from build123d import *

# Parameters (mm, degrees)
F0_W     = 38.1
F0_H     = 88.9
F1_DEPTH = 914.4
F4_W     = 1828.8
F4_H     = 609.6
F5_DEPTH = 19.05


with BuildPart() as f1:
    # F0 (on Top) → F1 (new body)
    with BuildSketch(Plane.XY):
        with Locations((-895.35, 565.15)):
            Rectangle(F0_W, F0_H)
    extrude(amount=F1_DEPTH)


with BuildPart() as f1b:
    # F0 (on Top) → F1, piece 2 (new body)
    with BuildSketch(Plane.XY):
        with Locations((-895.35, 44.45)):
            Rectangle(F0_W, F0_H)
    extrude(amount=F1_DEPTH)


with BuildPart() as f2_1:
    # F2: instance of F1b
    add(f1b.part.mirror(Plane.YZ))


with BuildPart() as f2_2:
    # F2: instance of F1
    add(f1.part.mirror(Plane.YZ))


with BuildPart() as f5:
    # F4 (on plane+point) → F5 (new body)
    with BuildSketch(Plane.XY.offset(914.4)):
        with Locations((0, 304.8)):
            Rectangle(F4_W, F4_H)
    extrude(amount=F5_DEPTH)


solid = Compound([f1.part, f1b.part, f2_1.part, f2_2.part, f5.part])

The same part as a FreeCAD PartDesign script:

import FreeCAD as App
import Part
import Sketcher
Q = App.Units.Quantity

doc = App.newDocument("Part")
params = doc.addObject("Spreadsheet::Sheet", "Params")
for row, (alias, value) in enumerate([
    ("sketch1_width", "1.5 in"),
    ("sketch1_height", "3.5 in"),
    ("pad1_length", "36 in"),
    ("sketch2_width", "1.5 in"),
    ("sketch2_height", "3.5 in"),
    ("pad2_length", "36 in"),
    ("sketch3_width", "72 in"),
    ("sketch3_height", "24 in"),
    ("pad3_length", "0.75 in"),
], start=1):
    params.set(f"A{row}", alias)
    params.set(f"B{row}", "=" + value)
    params.setAlias(f"B{row}", alias)

body = doc.addObject("PartDesign::Body", "Body")

# Sketch on XY plane
sketch1 = body.newObject("Sketcher::SketchObject", "Sketch")
sketch1.AttachmentSupport = (doc.getObject("XY_Plane"), [""])
sketch1.MapMode = "FlatFace"
sketch1.addGeometry(Part.LineSegment(App.Vector(-914, 610, 0), App.Vector(-914, 521, 0)), False)
sketch1.addGeometry(Part.LineSegment(App.Vector(-914, 521, 0), App.Vector(-876, 521, 0)), False)
sketch1.addGeometry(Part.LineSegment(App.Vector(-876, 521, 0), App.Vector(-876, 610, 0)), False)
sketch1.addGeometry(Part.LineSegment(App.Vector(-876, 610, 0), App.Vector(-914, 610, 0)), False)
sketch1.addConstraint(Sketcher.Constraint("Coincident", 0, 2, 1, 1))
sketch1.addConstraint(Sketcher.Constraint("Coincident", 1, 2, 2, 1))
sketch1.addConstraint(Sketcher.Constraint("Coincident", 2, 2, 3, 1))
sketch1.addConstraint(Sketcher.Constraint("Coincident", 3, 2, 0, 1))
sketch1.addConstraint(Sketcher.Constraint("Vertical", 0))
sketch1.addConstraint(Sketcher.Constraint("Horizontal", 1))
sketch1.addConstraint(Sketcher.Constraint("Vertical", 2))
sketch1.addConstraint(Sketcher.Constraint("Horizontal", 3))
sketch1.addConstraint(Sketcher.Constraint("DistanceX", 1, 1, 1, 2, Q("1.5 in")))
sketch1.addConstraint(Sketcher.Constraint("DistanceY", 0, 2, 0, 1, Q("3.5 in")))
sketch1.addConstraint(Sketcher.Constraint("DistanceX", 0, 2, -1, 1, Q("36 in")))
sketch1.addConstraint(Sketcher.Constraint("DistanceY", -1, 1, 2, 2, Q("24 in")))
sketch1.setExpression("Constraints[8]", "Params.sketch1_width")
sketch1.setExpression("Constraints[9]", "Params.sketch1_height")
pad1 = body.newObject("PartDesign::Pad", "Pad")
pad1.Profile = sketch1
pad1.setExpression("Length", "Params.pad1_length")
body2 = doc.addObject("PartDesign::Body", "Body001")

# Sketch on XY plane
sketch2 = body2.newObject("Sketcher::SketchObject", "Sketch001")
sketch2.AttachmentSupport = (doc.getObject("XY_Plane001"), [""])
sketch2.MapMode = "FlatFace"
sketch2.addGeometry(Part.LineSegment(App.Vector(-914, 89, 0), App.Vector(-914, 0, 0)), False)
sketch2.addGeometry(Part.LineSegment(App.Vector(-914, 0, 0), App.Vector(-876, 0, 0)), False)
sketch2.addGeometry(Part.LineSegment(App.Vector(-876, 0, 0), App.Vector(-876, 89, 0)), False)
sketch2.addGeometry(Part.LineSegment(App.Vector(-876, 89, 0), App.Vector(-914, 89, 0)), False)
sketch2.addConstraint(Sketcher.Constraint("Coincident", 0, 2, 1, 1))
sketch2.addConstraint(Sketcher.Constraint("Coincident", 1, 2, 2, 1))
sketch2.addConstraint(Sketcher.Constraint("Coincident", 2, 2, 3, 1))
sketch2.addConstraint(Sketcher.Constraint("Coincident", 3, 2, 0, 1))
sketch2.addConstraint(Sketcher.Constraint("Vertical", 0))
sketch2.addConstraint(Sketcher.Constraint("Horizontal", 1))
sketch2.addConstraint(Sketcher.Constraint("Vertical", 2))
sketch2.addConstraint(Sketcher.Constraint("Horizontal", 3))
sketch2.addConstraint(Sketcher.Constraint("PointOnObject", 0, 2, -1))
sketch2.addConstraint(Sketcher.Constraint("DistanceX", 1, 1, 1, 2, Q("1.5 in")))
sketch2.addConstraint(Sketcher.Constraint("DistanceY", 0, 2, 0, 1, Q("3.5 in")))
sketch2.addConstraint(Sketcher.Constraint("DistanceX", 0, 2, -1, 1, Q("36 in")))
sketch2.setExpression("Constraints[9]", "Params.sketch2_width")
sketch2.setExpression("Constraints[10]", "Params.sketch2_height")
pad2 = body2.newObject("PartDesign::Pad", "Pad001")
pad2.Profile = sketch2
pad2.setExpression("Length", "Params.pad2_length")
body3 = doc.addObject("PartDesign::Body", "Body002")
doc.recompute()

mirroring = doc.addObject("Part::Mirroring", "Mirroring")
mirroring.Source = body2
mirroring.Base = App.Vector(0, 0, 0)
mirroring.Normal = App.Vector(1, 0, 0)
body3.BaseFeature = mirroring
doc.recompute()
body4 = doc.addObject("PartDesign::Body", "Body003")
doc.recompute()

mirroring2 = doc.addObject("Part::Mirroring", "Mirroring001")
mirroring2.Source = body
mirroring2.Base = App.Vector(0, 0, 0)
mirroring2.Normal = App.Vector(1, 0, 0)
body4.BaseFeature = mirroring2
doc.recompute()
body5 = doc.addObject("PartDesign::Body", "Body004")

# Sketch on XY plane
sketch3 = body5.newObject("Sketcher::SketchObject", "Sketch002")
sketch3.AttachmentSupport = (doc.getObject("XY_Plane004"), [""])
sketch3.MapMode = "FlatFace"
sketch3.AttachmentOffset = App.Placement(App.Vector(0, 0, 36 * 25.4), App.Rotation())
sketch3.addGeometry(Part.LineSegment(App.Vector(-914, 610, 0), App.Vector(-914, 0, 0)), False)
sketch3.addGeometry(Part.LineSegment(App.Vector(-914, 0, 0), App.Vector(914, 0, 0)), False)
sketch3.addGeometry(Part.LineSegment(App.Vector(914, 0, 0), App.Vector(914, 610, 0)), False)
sketch3.addGeometry(Part.LineSegment(App.Vector(914, 610, 0), App.Vector(-914, 610, 0)), False)
sketch3.addConstraint(Sketcher.Constraint("Coincident", 0, 2, 1, 1))
sketch3.addConstraint(Sketcher.Constraint("Coincident", 1, 2, 2, 1))
sketch3.addConstraint(Sketcher.Constraint("Coincident", 2, 2, 3, 1))
sketch3.addConstraint(Sketcher.Constraint("Coincident", 3, 2, 0, 1))
sketch3.addConstraint(Sketcher.Constraint("Vertical", 0))
sketch3.addConstraint(Sketcher.Constraint("Horizontal", 1))
sketch3.addConstraint(Sketcher.Constraint("Vertical", 2))
sketch3.addConstraint(Sketcher.Constraint("Horizontal", 3))
sketch3.addConstraint(Sketcher.Constraint("Symmetric", 0, 2, 1, 2, -1, 1))
sketch3.addConstraint(Sketcher.Constraint("DistanceX", 1, 1, 1, 2, Q("72 in")))
sketch3.addConstraint(Sketcher.Constraint("DistanceY", 0, 2, 0, 1, Q("24 in")))
sketch3.setExpression("Constraints[9]", "Params.sketch3_width")
sketch3.setExpression("Constraints[10]", "Params.sketch3_height")
pad3 = body5.newObject("PartDesign::Pad", "Pad002")
pad3.Profile = sketch3
pad3.setExpression("Length", "Params.pad3_length")
mirroring.Visibility = False
mirroring2.Visibility = False

doc.recompute()
